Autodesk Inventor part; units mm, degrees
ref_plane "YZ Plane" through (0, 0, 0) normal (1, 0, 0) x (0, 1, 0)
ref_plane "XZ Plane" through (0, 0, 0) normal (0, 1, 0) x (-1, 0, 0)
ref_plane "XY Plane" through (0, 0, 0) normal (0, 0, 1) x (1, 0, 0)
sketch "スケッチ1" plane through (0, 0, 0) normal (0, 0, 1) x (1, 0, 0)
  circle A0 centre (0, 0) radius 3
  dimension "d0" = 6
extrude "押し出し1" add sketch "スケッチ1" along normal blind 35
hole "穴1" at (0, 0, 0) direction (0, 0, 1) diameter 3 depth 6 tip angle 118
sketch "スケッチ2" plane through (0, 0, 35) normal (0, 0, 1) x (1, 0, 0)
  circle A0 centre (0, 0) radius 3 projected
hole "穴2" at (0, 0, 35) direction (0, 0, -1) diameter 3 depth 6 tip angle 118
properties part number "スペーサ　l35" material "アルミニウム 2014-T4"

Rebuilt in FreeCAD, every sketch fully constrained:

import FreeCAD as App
import Part
import Sketcher

doc = App.newDocument("Part")
body = doc.addObject("PartDesign::Body", "Body")

# Sketch on XY plane
sketch1 = body.newObject("Sketcher::SketchObject", "Sketch")
sketch1.AttachmentSupport = (doc.getObject("XY_Plane"), [""])
sketch1.MapMode = "FlatFace"
sketch1.addGeometry(Part.Circle(App.Vector(0, 0, 0), App.Vector(0, 0, 1), 3), False)
sketch1.addConstraint([
    Sketcher.Constraint("Coincident", 0, 3, -1, 1),
    Sketcher.Constraint("Diameter", 0, 6.0),
])
pad1 = body.newObject("PartDesign::Pad", "Pad")
pad1.Profile = sketch1
pad1.Length = 35

# Sketch on XY plane
sketch2 = body.newObject("Sketcher::SketchObject", "Sketch001")
sketch2.AttachmentSupport = (doc.getObject("XY_Plane"), [""])
sketch2.MapMode = "FlatFace"
sketch2.addGeometry(Part.Circle(App.Vector(0, 0, 0), App.Vector(0, 0, 1), 1.5), False)
sketch2.addConstraint([
    Sketcher.Constraint("Coincident", 0, 3, -1, 1),
    Sketcher.Constraint("Diameter", 0, 3.0),
])
doc.recompute()
hole = body.newObject("PartDesign::Hole", "Hole")
hole.Profile = sketch2
hole.ThreadType = "None"
hole.Diameter = 3
hole.DepthType = "Dimension"
hole.Depth = 6
hole.DrillPoint = "Angled"
hole.DrillPointAngle = 118
hole.Reversed = True

# Sketch on XY plane
sketch3 = body.newObject("Sketcher::SketchObject", "Sketch002")
sketch3.AttachmentSupport = (doc.getObject("XY_Plane"), [""])
sketch3.MapMode = "FlatFace"
sketch3.AttachmentOffset = App.Placement(App.Vector(0, 0, 35), App.Rotation())
sketch3.addGeometry(Part.Circle(App.Vector(0, 0, 0), App.Vector(0, 0, 1), 1.5), False)
sketch3.addConstraint([
    Sketcher.Constraint("Coincident", 0, 3, -1, 1),
    Sketcher.Constraint("Diameter", 0, 3.0),
])
doc.recompute()
hole2 = body.newObject("PartDesign::Hole", "Hole001")
hole2.Profile = sketch3
hole2.ThreadType = "None"
hole2.Diameter = 3
hole2.DepthType = "Dimension"
hole2.Depth = 6
hole2.DrillPoint = "Angled"
hole2.DrillPointAngle = 118

doc.recompute()
